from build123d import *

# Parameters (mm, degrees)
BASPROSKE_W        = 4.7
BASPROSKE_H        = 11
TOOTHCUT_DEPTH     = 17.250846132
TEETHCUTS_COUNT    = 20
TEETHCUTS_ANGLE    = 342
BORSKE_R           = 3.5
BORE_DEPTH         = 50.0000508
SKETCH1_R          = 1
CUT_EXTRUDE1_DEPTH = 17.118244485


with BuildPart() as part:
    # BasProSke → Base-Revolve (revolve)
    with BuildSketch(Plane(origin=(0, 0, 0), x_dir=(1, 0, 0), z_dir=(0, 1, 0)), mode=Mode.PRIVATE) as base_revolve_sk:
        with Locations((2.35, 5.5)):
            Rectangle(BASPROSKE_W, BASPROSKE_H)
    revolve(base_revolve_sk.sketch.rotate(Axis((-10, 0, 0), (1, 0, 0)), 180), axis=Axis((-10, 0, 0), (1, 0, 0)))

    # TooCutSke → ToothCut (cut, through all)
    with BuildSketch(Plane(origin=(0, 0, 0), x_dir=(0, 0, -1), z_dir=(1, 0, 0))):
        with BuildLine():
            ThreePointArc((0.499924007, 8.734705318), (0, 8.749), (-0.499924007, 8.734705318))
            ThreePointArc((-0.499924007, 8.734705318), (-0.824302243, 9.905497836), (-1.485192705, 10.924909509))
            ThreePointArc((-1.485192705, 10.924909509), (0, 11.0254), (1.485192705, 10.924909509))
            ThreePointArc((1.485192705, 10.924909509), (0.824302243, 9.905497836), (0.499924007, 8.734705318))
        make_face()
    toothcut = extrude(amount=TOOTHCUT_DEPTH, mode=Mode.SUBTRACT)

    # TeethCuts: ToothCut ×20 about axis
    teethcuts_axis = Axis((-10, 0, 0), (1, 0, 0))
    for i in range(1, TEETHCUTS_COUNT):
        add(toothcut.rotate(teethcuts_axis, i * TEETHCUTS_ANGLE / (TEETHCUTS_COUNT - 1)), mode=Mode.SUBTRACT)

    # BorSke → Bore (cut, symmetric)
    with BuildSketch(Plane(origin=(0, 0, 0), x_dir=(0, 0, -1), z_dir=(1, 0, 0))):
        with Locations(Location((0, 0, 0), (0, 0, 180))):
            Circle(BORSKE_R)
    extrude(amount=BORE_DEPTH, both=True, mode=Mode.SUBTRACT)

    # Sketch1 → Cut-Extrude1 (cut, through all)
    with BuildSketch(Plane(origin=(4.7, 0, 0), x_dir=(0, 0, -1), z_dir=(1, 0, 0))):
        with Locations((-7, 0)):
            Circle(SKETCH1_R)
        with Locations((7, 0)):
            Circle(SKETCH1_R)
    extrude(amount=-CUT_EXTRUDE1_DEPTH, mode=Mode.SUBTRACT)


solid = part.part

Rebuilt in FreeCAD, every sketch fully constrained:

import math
import FreeCAD as App
import Part
import Sketcher

doc = App.newDocument("Part")
params = doc.addObject("Spreadsheet::Sheet", "Params")
for row, (alias, value) in enumerate([
    ("sketch1_height", "11 mm"),
    ("sketch1_width", "4.7 mm"),
    ("revolution_angle", "360 deg"),
    ("sketch2_radius", "4 mm"),
    ("sketch3_diameter", "7 mm"),
    ("pocket2_length", "100.000102 mm"),
    ("sketch4_diameter", "2 mm"),
], start=1):
    params.set(f"A{row}", alias)
    params.set(f"B{row}", "=" + value)
    params.setAlias(f"B{row}", alias)

body = doc.addObject("PartDesign::Body", "Body")

sketch1 = doc.addObject("Sketcher::SketchObject", "Sketch")
body.addObject(sketch1)
sketch1.AttachmentSupport = (doc.XZ_Plane, [""])
sketch1.MapMode = "FlatFace"
sketch1.addGeometry([
    Part.LineSegment(App.Vector(0, -11, 0), App.Vector(0, 0, 0)),
    Part.LineSegment(App.Vector(0, 0, 0), App.Vector(4.7, 0, 0)),
    Part.LineSegment(App.Vector(4.7, 0, 0), App.Vector(4.7, -11, 0)),
    Part.LineSegment(App.Vector(4.7, -11, 0), App.Vector(0, -11, 0)),
], False)
sketch1.addConstraint([
    Sketcher.Constraint("Coincident", 0, 2, 1, 1),
    Sketcher.Constraint("Coincident", 1, 2, 2, 1),
    Sketcher.Constraint("Coincident", 2, 2, 3, 1),
    Sketcher.Constraint("Coincident", 3, 2, 0, 1),
    Sketcher.Constraint("Vertical", 0),
    Sketcher.Constraint("Horizontal", 1),
    Sketcher.Constraint("Vertical", 2),
    Sketcher.Constraint("Horizontal", 3),
    Sketcher.Constraint("Coincident", 0, 2, -1, 1),
    Sketcher.Constraint("DistanceY", 0, 1, 0, 2, 11.0),
    Sketcher.Constraint("DistanceX", 1, 1, 1, 2, 4.7),
])
sketch1.setExpression("Constraints[9]", "Params.sketch1_height")
sketch1.setExpression("Constraints[10]", "Params.sketch1_width")
revolution = doc.addObject("PartDesign::Revolution", "Revolution")
body.addObject(revolution)
revolution.Profile = sketch1
revolution.ReferenceAxis = (sketch1, ["H_Axis"])
revolution.setExpression("Angle", "Params.revolution_angle")

sketch2 = doc.addObject("Sketcher::SketchObject", "Sketch001")
body.addObject(sketch2)
sketch2.AttachmentSupport = (doc.YZ_Plane, [""])
sketch2.MapMode = "FlatFace"
sketch2.addGeometry([
    Part.ArcOfCircle(Part.Circle(App.Vector(0, 0, 0), App.Vector(0, 0, 1), 8.7), math.radians(-3.28), math.radians(3.28)),
    Part.ArcOfCircle(Part.Circle(App.Vector(8.3, -4.5, 0), App.Vector(0, 0, 1), 4), math.radians(48), math.radians(83)),
    Part.ArcOfCircle(Part.Circle(App.Vector(0, 0, 0), App.Vector(0, 0, 1), 11), math.radians(-7.74), math.radians(7.74)),
    Part.ArcOfCircle(Part.Circle(App.Vector(8.3, 4.5, 0), App.Vector(0, 0, 1), 4), math.radians(-83), math.radians(-48)),
], False)
sketch2.addConstraint([
    Sketcher.Constraint("Coincident", 0, 1, 1, 2),
    Sketcher.Constraint("Coincident", 1, 1, 2, 1),
    Sketcher.Constraint("Coincident", 2, 2, 3, 2),
    Sketcher.Constraint("Coincident", 3, 1, 0, 2),
    Sketcher.Constraint("Coincident", 0, 3, -1, 1),
    Sketcher.Constraint("Coincident", 2, 3, -1, 1),
    Sketcher.Constraint("Equal", 1, 3),
    Sketcher.Constraint("Symmetric", 1, 3, 3, 3, -1),
    Sketcher.Constraint("Radius", 1, 4.0),
    Sketcher.Constraint("Radius", 0, 8.749),
    Sketcher.Constraint("Radius", 2, 11.0254),
    Sketcher.Constraint("DistanceY", 1, 3, -1, 1, 4.47219),
    Sketcher.Constraint("DistanceX", -1, 1, 1, 1, 10.92491),
])
sketch2.setExpression("Constraints[8]", "Params.sketch2_radius")
pocket1 = doc.addObject("PartDesign::Pocket", "Pocket")
body.addObject(pocket1)
pocket1.Profile = sketch2
pocket1.Type = "ThroughAll"
pocket1.Reversed = True
doc.recompute()

polarpattern = doc.addObject("PartDesign::PolarPattern", "PolarPattern")
body.addObject(polarpattern)
polarpattern.Originals = [pocket1]
polarpattern.Axis = (doc.X_Axis, [""])
polarpattern.Angle = 360
polarpattern.Occurrences = 20
body.Tip = polarpattern

sketch3 = doc.addObject("Sketcher::SketchObject", "Sketch002")
body.addObject(sketch3)
sketch3.AttachmentSupport = (doc.YZ_Plane, [""])
sketch3.MapMode = "FlatFace"
sketch3.addGeometry(Part.Circle(App.Vector(0, 0, 0), App.Vector(0, 0, 1), 3.5), False)
sketch3.addConstraint([
    Sketcher.Constraint("Coincident", 0, 3, -1, 1),
    Sketcher.Constraint("Diameter", 0, 7.0),
])
sketch3.setExpression("Constraints[1]", "Params.sketch3_diameter")
pocket2 = doc.addObject("PartDesign::Pocket", "Pocket001")
body.addObject(pocket2)
pocket2.Profile = sketch3
pocket2.setExpression("Length", "Params.pocket2_length")
pocket2.Midplane = True

sketch4 = doc.addObject("Sketcher::SketchObject", "Sketch003")
body.addObject(sketch4)
sketch4.AttachmentSupport = (doc.YZ_Plane, [""])
sketch4.MapMode = "FlatFace"
sketch4.AttachmentOffset = App.Placement(App.Vector(0, 0, 4.7), App.Rotation())
sketch4.addGeometry([
    Part.Circle(App.Vector(0, 7, 0), App.Vector(0, 0, 1), 1),
    Part.Circle(App.Vector(0, -7, 0), App.Vector(0, 0, 1), 1),
], False)
sketch4.addConstraint([
    Sketcher.Constraint("Equal", 0, 1),
    Sketcher.Constraint("Symmetric", 0, 3, 1, 3, -1, 1),
    Sketcher.Constraint("PointOnObject", 0, 3, -2),
    Sketcher.Constraint("Diameter", 0, 2.0),
    Sketcher.Constraint("DistanceY", -1, 1, 0, 3, 7.0),
])
sketch4.setExpression("Constraints[3]", "Params.sketch4_diameter")
pocket3 = doc.addObject("PartDesign::Pocket", "Pocket002")
body.addObject(pocket3)
pocket3.Profile = sketch4
pocket3.Type = "ThroughAll"

doc.recompute()
